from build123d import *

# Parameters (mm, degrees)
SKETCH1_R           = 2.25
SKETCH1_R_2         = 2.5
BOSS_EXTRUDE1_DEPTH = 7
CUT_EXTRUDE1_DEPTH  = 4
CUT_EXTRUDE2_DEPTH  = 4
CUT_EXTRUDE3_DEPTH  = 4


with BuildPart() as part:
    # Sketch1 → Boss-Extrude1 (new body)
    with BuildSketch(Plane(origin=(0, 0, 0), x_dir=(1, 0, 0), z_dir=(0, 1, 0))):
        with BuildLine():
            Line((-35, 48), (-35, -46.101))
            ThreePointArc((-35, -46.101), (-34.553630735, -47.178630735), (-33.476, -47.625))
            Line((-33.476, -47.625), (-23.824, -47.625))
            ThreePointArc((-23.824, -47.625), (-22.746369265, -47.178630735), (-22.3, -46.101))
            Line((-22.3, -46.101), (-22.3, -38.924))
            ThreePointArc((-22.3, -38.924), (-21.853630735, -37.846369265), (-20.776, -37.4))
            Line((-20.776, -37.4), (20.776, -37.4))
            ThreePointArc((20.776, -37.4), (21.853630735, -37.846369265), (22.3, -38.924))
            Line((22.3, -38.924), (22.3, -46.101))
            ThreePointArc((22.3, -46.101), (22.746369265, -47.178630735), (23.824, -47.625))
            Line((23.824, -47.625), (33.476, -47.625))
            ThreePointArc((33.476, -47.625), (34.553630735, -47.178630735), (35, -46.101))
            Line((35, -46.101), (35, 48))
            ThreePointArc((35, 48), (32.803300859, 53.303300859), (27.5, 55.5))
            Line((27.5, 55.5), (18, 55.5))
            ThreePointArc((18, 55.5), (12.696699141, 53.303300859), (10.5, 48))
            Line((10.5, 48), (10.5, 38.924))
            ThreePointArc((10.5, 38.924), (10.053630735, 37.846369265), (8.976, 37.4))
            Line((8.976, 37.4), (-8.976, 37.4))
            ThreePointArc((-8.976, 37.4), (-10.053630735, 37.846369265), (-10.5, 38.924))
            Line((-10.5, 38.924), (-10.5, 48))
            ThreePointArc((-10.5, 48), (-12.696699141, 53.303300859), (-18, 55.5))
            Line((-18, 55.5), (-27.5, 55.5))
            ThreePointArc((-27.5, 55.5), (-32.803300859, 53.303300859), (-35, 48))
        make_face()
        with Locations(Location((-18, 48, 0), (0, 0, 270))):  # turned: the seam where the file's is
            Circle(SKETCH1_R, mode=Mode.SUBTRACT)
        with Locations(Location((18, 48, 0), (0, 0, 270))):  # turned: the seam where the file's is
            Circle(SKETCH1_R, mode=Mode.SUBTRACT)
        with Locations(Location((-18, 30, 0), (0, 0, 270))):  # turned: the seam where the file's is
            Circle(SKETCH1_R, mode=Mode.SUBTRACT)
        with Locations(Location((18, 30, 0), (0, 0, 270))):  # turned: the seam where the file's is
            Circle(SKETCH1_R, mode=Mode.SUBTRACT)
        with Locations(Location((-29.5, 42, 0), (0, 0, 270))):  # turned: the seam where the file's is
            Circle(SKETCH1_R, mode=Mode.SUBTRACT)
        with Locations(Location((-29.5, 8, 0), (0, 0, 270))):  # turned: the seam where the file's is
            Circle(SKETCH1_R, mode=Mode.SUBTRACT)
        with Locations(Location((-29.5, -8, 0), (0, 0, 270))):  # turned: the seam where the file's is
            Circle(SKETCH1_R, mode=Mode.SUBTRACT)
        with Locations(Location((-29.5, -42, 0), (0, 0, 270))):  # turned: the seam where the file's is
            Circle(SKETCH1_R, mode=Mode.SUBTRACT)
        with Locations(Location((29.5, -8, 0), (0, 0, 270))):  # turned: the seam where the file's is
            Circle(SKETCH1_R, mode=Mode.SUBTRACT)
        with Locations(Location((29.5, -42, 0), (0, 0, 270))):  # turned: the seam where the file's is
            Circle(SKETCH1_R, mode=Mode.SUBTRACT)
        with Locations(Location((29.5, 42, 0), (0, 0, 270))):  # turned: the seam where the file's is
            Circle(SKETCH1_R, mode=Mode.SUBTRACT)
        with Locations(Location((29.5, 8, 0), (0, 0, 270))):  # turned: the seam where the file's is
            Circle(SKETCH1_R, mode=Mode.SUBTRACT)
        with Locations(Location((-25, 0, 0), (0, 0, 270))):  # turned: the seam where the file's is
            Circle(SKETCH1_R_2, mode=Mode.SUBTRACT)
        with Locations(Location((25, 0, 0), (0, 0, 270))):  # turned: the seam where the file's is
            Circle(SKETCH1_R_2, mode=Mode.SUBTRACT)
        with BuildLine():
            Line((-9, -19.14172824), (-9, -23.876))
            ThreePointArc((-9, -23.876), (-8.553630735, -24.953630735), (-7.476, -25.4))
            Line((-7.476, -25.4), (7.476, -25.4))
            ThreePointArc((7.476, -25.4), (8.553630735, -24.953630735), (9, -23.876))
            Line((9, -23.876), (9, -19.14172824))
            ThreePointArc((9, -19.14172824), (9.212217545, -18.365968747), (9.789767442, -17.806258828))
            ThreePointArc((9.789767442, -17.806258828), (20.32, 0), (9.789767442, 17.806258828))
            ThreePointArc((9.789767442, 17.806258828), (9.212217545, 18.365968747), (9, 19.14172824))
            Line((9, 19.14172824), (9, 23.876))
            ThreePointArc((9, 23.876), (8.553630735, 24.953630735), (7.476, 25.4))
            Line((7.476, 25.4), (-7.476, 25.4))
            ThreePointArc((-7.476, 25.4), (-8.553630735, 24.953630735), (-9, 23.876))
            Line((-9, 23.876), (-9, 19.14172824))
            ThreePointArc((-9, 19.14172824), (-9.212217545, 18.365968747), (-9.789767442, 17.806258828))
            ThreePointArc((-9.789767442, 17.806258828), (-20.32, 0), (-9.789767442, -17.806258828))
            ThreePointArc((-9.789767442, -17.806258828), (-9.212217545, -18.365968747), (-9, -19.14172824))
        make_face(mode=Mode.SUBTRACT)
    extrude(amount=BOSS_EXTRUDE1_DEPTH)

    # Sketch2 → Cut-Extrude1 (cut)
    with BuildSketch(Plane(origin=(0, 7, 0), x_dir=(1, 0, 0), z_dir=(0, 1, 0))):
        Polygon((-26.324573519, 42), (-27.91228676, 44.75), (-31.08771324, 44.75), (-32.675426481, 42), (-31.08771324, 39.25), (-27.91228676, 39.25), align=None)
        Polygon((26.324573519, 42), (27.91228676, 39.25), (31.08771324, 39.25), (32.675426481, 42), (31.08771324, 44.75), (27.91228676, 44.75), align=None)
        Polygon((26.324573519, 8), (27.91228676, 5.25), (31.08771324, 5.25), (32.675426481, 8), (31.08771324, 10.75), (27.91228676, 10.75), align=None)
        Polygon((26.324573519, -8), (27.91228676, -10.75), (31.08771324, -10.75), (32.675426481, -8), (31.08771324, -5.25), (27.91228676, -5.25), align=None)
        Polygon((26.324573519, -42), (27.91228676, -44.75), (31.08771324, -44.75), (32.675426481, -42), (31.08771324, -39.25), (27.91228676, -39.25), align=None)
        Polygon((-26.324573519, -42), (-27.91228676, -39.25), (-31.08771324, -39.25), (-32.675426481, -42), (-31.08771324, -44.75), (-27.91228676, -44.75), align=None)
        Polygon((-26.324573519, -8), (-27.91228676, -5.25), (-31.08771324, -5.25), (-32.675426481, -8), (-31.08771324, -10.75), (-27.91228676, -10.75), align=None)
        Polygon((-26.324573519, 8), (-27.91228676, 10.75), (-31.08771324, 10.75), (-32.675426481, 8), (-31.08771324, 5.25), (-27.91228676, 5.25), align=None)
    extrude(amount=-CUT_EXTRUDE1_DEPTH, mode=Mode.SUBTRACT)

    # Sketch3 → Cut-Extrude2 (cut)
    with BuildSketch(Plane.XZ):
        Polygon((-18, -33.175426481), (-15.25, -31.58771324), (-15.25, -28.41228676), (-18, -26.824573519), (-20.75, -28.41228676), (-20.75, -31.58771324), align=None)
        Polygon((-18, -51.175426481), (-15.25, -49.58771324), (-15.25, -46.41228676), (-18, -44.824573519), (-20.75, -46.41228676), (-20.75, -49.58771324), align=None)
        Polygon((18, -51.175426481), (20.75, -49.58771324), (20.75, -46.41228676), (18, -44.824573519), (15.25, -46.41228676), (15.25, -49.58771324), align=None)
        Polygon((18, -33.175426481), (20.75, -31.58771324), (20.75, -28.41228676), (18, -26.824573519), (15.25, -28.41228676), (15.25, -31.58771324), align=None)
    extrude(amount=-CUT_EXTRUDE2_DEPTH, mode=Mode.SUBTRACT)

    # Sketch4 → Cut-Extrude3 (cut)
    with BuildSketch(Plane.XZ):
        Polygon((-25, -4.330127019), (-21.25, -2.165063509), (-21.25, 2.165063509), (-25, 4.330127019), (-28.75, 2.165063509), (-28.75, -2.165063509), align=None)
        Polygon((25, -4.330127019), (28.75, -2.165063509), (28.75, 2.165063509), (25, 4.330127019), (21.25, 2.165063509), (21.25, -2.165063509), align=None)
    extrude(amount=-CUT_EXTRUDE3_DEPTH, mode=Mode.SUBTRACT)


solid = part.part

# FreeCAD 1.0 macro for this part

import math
import FreeCAD as App
import Part
import Sketcher
Q = App.Units.Quantity

doc = App.newDocument("Part")
body = doc.addObject("PartDesign::Body", "Body")

sketch1 = body.newObject("Sketcher::SketchObject", "Sketch")
sketch1.AttachmentSupport = (doc.getObject("XZ_Plane"), [""])
sketch1.MapMode = "FlatFace"
sketch1.addGeometry([
    Part.LineSegment(App.Vector(-35, -48, 0), App.Vector(-35, 46.1, 0)),
    Part.ArcOfCircle(Part.Circle(App.Vector(-33.5, 46.1, 0), App.Vector(0, 0, 1), 1.5), math.radians(90), math.radians(180)),
    Part.LineSegment(App.Vector(-33.5, 47.6, 0), App.Vector(-23.8, 47.6, 0)),
    Part.ArcOfCircle(Part.Circle(App.Vector(-23.8, 46.1, 0), App.Vector(0, 0, 1), 1.5), math.radians(0), math.radians(90)),
    Part.LineSegment(App.Vector(-22.3, 46.1, 0), App.Vector(-22.3, 38.9, 0)),
    Part.ArcOfCircle(Part.Circle(App.Vector(-20.8, 38.9, 0), App.Vector(0, 0, 1), 1.5), math.radians(180), math.radians(270)),
    Part.LineSegment(App.Vector(-20.8, 37.4, 0), App.Vector(20.8, 37.4, 0)),
    Part.ArcOfCircle(Part.Circle(App.Vector(20.8, 38.9, 0), App.Vector(0, 0, 1), 1.5), math.radians(-90), math.radians(0)),
    Part.LineSegment(App.Vector(22.3, 38.9, 0), App.Vector(22.3, 46.1, 0)),
    Part.ArcOfCircle(Part.Circle(App.Vector(23.8, 46.1, 0), App.Vector(0, 0, 1), 1.5), math.radians(90), math.radians(180)),
    Part.LineSegment(App.Vector(23.8, 47.6, 0), App.Vector(33.5, 47.6, 0)),
    Part.ArcOfCircle(Part.Circle(App.Vector(33.5, 46.1, 0), App.Vector(0, 0, 1), 1.5), math.radians(0), math.radians(90)),
    Part.LineSegment(App.Vector(35, 46.1, 0), App.Vector(35, -48, 0)),
    Part.ArcOfCircle(Part.Circle(App.Vector(27.5, -48, 0), App.Vector(0, 0, 1), 7.5), math.radians(-90), math.radians(0)),
    Part.LineSegment(App.Vector(27.5, -55.5, 0), App.Vector(18, -55.5, 0)),
    Part.ArcOfCircle(Part.Circle(App.Vector(18, -48, 0), App.Vector(0, 0, 1), 7.5), math.radians(180), math.radians(270)),
    Part.LineSegment(App.Vector(10.5, -48, 0), App.Vector(10.5, -38.9, 0)),
    Part.ArcOfCircle(Part.Circle(App.Vector(9, -38.9, 0), App.Vector(0, 0, 1), 1.5), math.radians(0), math.radians(90)),
    Part.LineSegment(App.Vector(9, -37.4, 0), App.Vector(-9, -37.4, 0)),
    Part.ArcOfCircle(Part.Circle(App.Vector(-9, -38.9, 0), App.Vector(0, 0, 1), 1.5), math.radians(90), math.radians(180)),
    Part.LineSegment(App.Vector(-10.5, -38.9, 0), App.Vector(-10.5, -48, 0)),
    Part.ArcOfCircle(Part.Circle(App.Vector(-18, -48, 0), App.Vector(0, 0, 1), 7.5), math.radians(-90), math.radians(0)),
    Part.LineSegment(App.Vector(-18, -55.5, 0), App.Vector(-27.5, -55.5, 0)),
    Part.ArcOfCircle(Part.Circle(App.Vector(-27.5, -48, 0), App.Vector(0, 0, 1), 7.5), math.radians(180), math.radians(270)),
    Part.Circle(App.Vector(-29.5, 42, 0), App.Vector(0, 0, 1), 2.2),
    Part.Circle(App.Vector(-29.5, 8, 0), App.Vector(0, 0, 1), 2.2),
    Part.Circle(App.Vector(-25, 0, 0), App.Vector(0, 0, 1), 2.5),
    Part.Circle(App.Vector(29.5, 42, 0), App.Vector(0, 0, 1), 2.2),
    Part.LineSegment(App.Vector(-9, 23.9, 0), App.Vector(-9, 19.1, 0)),
    Part.ArcOfCircle(Part.Circle(App.Vector(-10.5, 19.1, 0), App.Vector(0, 0, 1), 1.5), math.radians(-61), math.radians(0)),
    Part.ArcOfCircle(Part.Circle(App.Vector(0, 0, 0), App.Vector(0, 0, 1), 20.3), math.radians(119), math.radians(241)),
    Part.ArcOfCircle(Part.Circle(App.Vector(-10.5, -19.1, 0), App.Vector(0, 0, 1), 1.5), math.radians(0), math.radians(61)),
    Part.LineSegment(App.Vector(-9, -19.1, 0), App.Vector(-9, -23.9, 0)),
    Part.ArcOfCircle(Part.Circle(App.Vector(-7.5, -23.9, 0), App.Vector(0, 0, 1), 1.5), math.radians(180), math.radians(270)),
    Part.LineSegment(App.Vector(-7.5, -25.4, 0), App.Vector(7.5, -25.4, 0)),
    Part.ArcOfCircle(Part.Circle(App.Vector(7.5, -23.9, 0), App.Vector(0, 0, 1), 1.5), math.radians(-90), math.radians(0)),
    Part.LineSegment(App.Vector(9, -23.9, 0), App.Vector(9, -19.1, 0)),
    Part.ArcOfCircle(Part.Circle(App.Vector(10.5, -19.1, 0), App.Vector(0, 0, 1), 1.5), math.radians(119), math.radians(180)),
    Part.ArcOfCircle(Part.Circle(App.Vector(0, 0, 0), App.Vector(0, 0, 1), 20.3), math.radians(-61), math.radians(61)),
    Part.ArcOfCircle(Part.Circle(App.Vector(10.5, 19.1, 0), App.Vector(0, 0, 1), 1.5), math.radians(180), math.radians(241)),
    Part.LineSegment(App.Vector(9, 19.1, 0), App.Vector(9, 23.9, 0)),
    Part.ArcOfCircle(Part.Circle(App.Vector(7.5, 23.9, 0), App.Vector(0, 0, 1), 1.5), math.radians(0), math.radians(90)),
    Part.LineSegment(App.Vector(7.5, 25.4, 0), App.Vector(-7.5, 25.4, 0)),
    Part.ArcOfCircle(Part.Circle(App.Vector(-7.5, 23.9, 0), App.Vector(0, 0, 1), 1.5), math.radians(90), math.radians(180)),
    Part.Circle(App.Vector(29.5, 8, 0), App.Vector(0, 0, 1), 2.2),
    Part.Circle(App.Vector(25, 0, 0), App.Vector(0, 0, 1), 2.5),
    Part.Circle(App.Vector(-29.5, -8, 0), App.Vector(0, 0, 1), 2.2),
    Part.Circle(App.Vector(-18, -30, 0), App.Vector(0, 0, 1), 2.2),
    Part.Circle(App.Vector(-29.5, -42, 0), App.Vector(0, 0, 1), 2.2),
    Part.Circle(App.Vector(-18, -48, 0), App.Vector(0, 0, 1), 2.2),
    Part.Circle(App.Vector(29.5, -8, 0), App.Vector(0, 0, 1), 2.2),
    Part.Circle(App.Vector(18, -30, 0), App.Vector(0, 0, 1), 2.2),
    Part.Circle(App.Vector(18, -48, 0), App.Vector(0, 0, 1), 2.2),
    Part.Circle(App.Vector(29.5, -42, 0), App.Vector(0, 0, 1), 2.2),
], False)
sketch1.addConstraint([
    Sketcher.Constraint("Tangent", 0, 2, 1, 2),
    Sketcher.Constraint("Tangent", 1, 1, 2, 1),
    Sketcher.Constraint("Tangent", 2, 2, 3, 2),
    Sketcher.Constraint("Tangent", 3, 1, 4, 1),
    Sketcher.Constraint("Tangent", 4, 2, 5, 1),
    Sketcher.Constraint("Tangent", 5, 2, 6, 1),
    Sketcher.Constraint("Tangent", 6, 2, 7, 1),
    Sketcher.Constraint("Tangent", 7, 2, 8, 1),
    Sketcher.Constraint("Tangent", 8, 2, 9, 2),
    Sketcher.Constraint("Tangent", 9, 1, 10, 1),
    Sketcher.Constraint("Tangent", 10, 2, 11, 2),
    Sketcher.Constraint("Tangent", 11, 1, 12, 1),
    Sketcher.Constraint("Tangent", 12, 2, 13, 2),
    Sketcher.Constraint("Tangent", 13, 1, 14, 1),
    Sketcher.Constraint("Tangent", 14, 2, 15, 2),
    Sketcher.Constraint("Tangent", 15, 1, 16, 1),
    Sketcher.Constraint("Tangent", 16, 2, 17, 1),
    Sketcher.Constraint("Tangent", 17, 2, 18, 1),
    Sketcher.Constraint("Tangent", 18, 2, 19, 1),
    Sketcher.Constraint("Tangent", 19, 2, 20, 1),
    Sketcher.Constraint("Tangent", 20, 2, 21, 2),
    Sketcher.Constraint("Tangent", 21, 1, 22, 1),
    Sketcher.Constraint("Tangent", 22, 2, 23, 2),
    Sketcher.Constraint("Tangent", 23, 1, 0, 1),
    Sketcher.Constraint("Tangent", 28, 2, 29, 2),
    Sketcher.Constraint("Tangent", 29, 1, 30, 1),
    Sketcher.Constraint("Tangent", 30, 2, 31, 2),
    Sketcher.Constraint("Tangent", 31, 1, 32, 1),
    Sketcher.Constraint("Tangent", 32, 2, 33, 1),
    Sketcher.Constraint("Tangent", 33, 2, 34, 1),
    Sketcher.Constraint("Tangent", 34, 2, 35, 1),
    Sketcher.Constraint("Tangent", 35, 2, 36, 1),
    Sketcher.Constraint("Tangent", 36, 2, 37, 2),
    Sketcher.Constraint("Tangent", 37, 1, 38, 1),
    Sketcher.Constraint("Tangent", 38, 2, 39, 2),
    Sketcher.Constraint("Tangent", 39, 1, 40, 1),
    Sketcher.Constraint("Tangent", 40, 2, 41, 1),
    Sketcher.Constraint("Tangent", 41, 2, 42, 1),
    Sketcher.Constraint("Tangent", 42, 2, 43, 1),
    Sketcher.Constraint("Tangent", 43, 2, 28, 1),
    Sketcher.Constraint("Vertical", 0),
    Sketcher.Constraint("Horizontal", 2),
    Sketcher.Constraint("Vertical", 4),
    Sketcher.Constraint("Horizontal", 6),
    Sketcher.Constraint("Vertical", 8),
    Sketcher.Constraint("Horizontal", 10),
    Sketcher.Constraint("Vertical", 12),
    Sketcher.Constraint("Horizontal", 14),
    Sketcher.Constraint("Vertical", 16),
    Sketcher.Constraint("Horizontal", 18),
    Sketcher.Constraint("Vertical", 20),
    Sketcher.Constraint("Horizontal", 22),
    Sketcher.Constraint("Vertical", 28),
    Sketcher.Constraint("Vertical", 32),
    Sketcher.Constraint("Horizontal", 34),
    Sketcher.Constraint("Vertical", 36),
    Sketcher.Constraint("Vertical", 40),
    Sketcher.Constraint("Horizontal", 42),
    Sketcher.Constraint("Coincident", 30, 3, -1, 1),
    Sketcher.Constraint("Coincident", 38, 3, -1, 1),
    Sketcher.Constraint("Coincident", 49, 3, 21, 3),
    Sketcher.Constraint("Coincident", 52, 3, 15, 3),
    Sketcher.Constraint("Equal", 1, 3),
    Sketcher.Constraint("Equal", 3, 5),
    Sketcher.Constraint("Equal", 5, 7),
    Sketcher.Constraint("Equal", 7, 9),
    Sketcher.Constraint("Equal", 9, 11),
    Sketcher.Constraint("Equal", 13, 15),
    Sketcher.Constraint("Equal", 11, 17),
    Sketcher.Constraint("Equal", 17, 19),
    Sketcher.Constraint("Equal", 15, 21),
    Sketcher.Constraint("Equal", 21, 23),
    Sketcher.Constraint("Equal", 24, 25),
    Sketcher.Constraint("Equal", 25, 27),
    Sketcher.Constraint("Equal", 19, 29),
    Sketcher.Constraint("Equal", 29, 31),
    Sketcher.Constraint("Equal", 31, 33),
    Sketcher.Constraint("Equal", 33, 35),
    Sketcher.Constraint("Equal", 35, 37),
    Sketcher.Constraint("Equal", 30, 38),
    Sketcher.Constraint("Equal", 37, 39),
    Sketcher.Constraint("Equal", 39, 41),
    Sketcher.Constraint("Equal", 41, 43),
    Sketcher.Constraint("Equal", 27, 44),
    Sketcher.Constraint("Equal", 26, 45),
    Sketcher.Constraint("Equal", 44, 46),
    Sketcher.Constraint("Equal", 46, 47),
    Sketcher.Constraint("Equal", 47, 48),
    Sketcher.Constraint("Equal", 48, 49),
    Sketcher.Constraint("Equal", 49, 50),
    Sketcher.Constraint("Equal", 50, 51),
    Sketcher.Constraint("Equal", 51, 52),
    Sketcher.Constraint("Equal", 52, 53),
    Sketcher.Constraint("Symmetric", 33, 3, 41, 3, -1, 1),
    Sketcher.Constraint("Symmetric", 26, 3, 45, 3, -1, 1),
    Sketcher.Constraint("Symmetric", 44, 3, 46, 3, -1, 1),
    Sketcher.Constraint("Symmetric", 27, 3, 48, 3, -1, 1),
    Sketcher.Constraint("Symmetric", 25, 3, 50, 3, -1, 1),
    Sketcher.Constraint("Symmetric", 24, 3, 53, 3, -1, 1),
    Sketcher.Constraint("Symmetric", 3, 3, 9, 3, -2),
    Sketcher.Constraint("Symmetric", 15, 3, 21, 3, -2),
    Sketcher.Constraint("Symmetric", 24, 3, 27, 3, -2),
    Sketcher.Constraint("Symmetric", 25, 3, 44, 3, -2),
    Sketcher.Constraint("Symmetric", 47, 3, 51, 3, -2),
    Sketcher.Constraint("PointOnObject", 26, 3, -1),
    Sketcher.Constraint("Horizontal", 31, 3, 37, 3),
    Sketcher.Constraint("Horizontal", 29, 3, 39, 3),
    Sketcher.Constraint("Vertical", 24, 3, 25, 3),
    Sketcher.Constraint("Vertical", 21, 3, 47, 3),
    Sketcher.Constraint("Equal", 2, 10),
    Sketcher.Constraint("Diameter", 26, 5.0),
    Sketcher.Constraint("Diameter", 24, 4.5),
    Sketcher.Constraint("Radius", 13, 7.5),
    Sketcher.Constraint("Radius", 30, 20.32),
    Sketcher.Constraint("DistanceX", 14, 2, 14, 1, 9.5),
    Sketcher.Constraint("DistanceY", 13, 3, -1, 1, 48.0),
    Sketcher.Constraint("DistanceX", -1, 1, 15, 3, 18.0),
    Sketcher.Constraint("DistanceY", -1, 1, 24, 3, 42.0),
    Sketcher.Constraint("DistanceY", -1, 1, 25, 3, 8.0),
    Sketcher.Constraint("DistanceX", 26, 3, -1, 1, 25.0),
    Sketcher.Constraint("DistanceY", 47, 3, -1, 1, 30.0),
    Sketcher.Constraint("DistanceX", 28, 2, -1, 1, 9.0),
    Sketcher.Constraint("Radius", 1, 1.524),
    Sketcher.Constraint("DistanceX", 24, 3, -1, 1, 29.5),
    Sketcher.Constraint("DistanceX", 3, 1, -1, 1, 22.3),
    Sketcher.Constraint("DistanceY", -1, 1, 5, 2, 37.4),
    Sketcher.Constraint("DistanceY", 17, 2, -1, 1, 37.4),
    Sketcher.Constraint("DistanceY", 33, 2, -1, 1, 25.4),
    Sketcher.Constraint("DistanceY", 0, 1, 0, 2, 94.101),
])
pad1 = body.newObject("PartDesign::Pad", "Pad")
pad1.Profile = sketch1
pad1.Length = 7
pad1.Reversed = True

sketch2 = body.newObject("Sketcher::SketchObject", "Sketch001")
sketch2.AttachmentSupport = (doc.getObject("XZ_Plane"), [""])
sketch2.MapMode = "FlatFace"
sketch2.AttachmentOffset = App.Placement(App.Vector(0, 0, -7), App.Rotation())
sketch2.addGeometry([
    Part.LineSegment(App.Vector(-26.3, -42, 0), App.Vector(-27.9, -44.8, 0)),
    Part.LineSegment(App.Vector(-27.9, -44.8, 0), App.Vector(-31.1, -44.8, 0)),
    Part.LineSegment(App.Vector(-31.1, -44.8, 0), App.Vector(-32.7, -42, 0)),
    Part.LineSegment(App.Vector(-32.7, -42, 0), App.Vector(-31.1, -39.2, 0)),
    Part.LineSegment(App.Vector(-31.1, -39.2, 0), App.Vector(-27.9, -39.2, 0)),
    Part.LineSegment(App.Vector(-27.9, -39.2, 0), App.Vector(-26.3, -42, 0)),
    Part.LineSegment(App.Vector(26.3, -42, 0), App.Vector(27.9, -39.2, 0)),
    Part.LineSegment(App.Vector(27.9, -39.2, 0), App.Vector(31.1, -39.2, 0)),
    Part.LineSegment(App.Vector(31.1, -39.2, 0), App.Vector(32.7, -42, 0)),
    Part.LineSegment(App.Vector(32.7, -42, 0), App.Vector(31.1, -44.8, 0)),
    Part.LineSegment(App.Vector(31.1, -44.8, 0), App.Vector(27.9, -44.8, 0)),
    Part.LineSegment(App.Vector(27.9, -44.8, 0), App.Vector(26.3, -42, 0)),
    Part.LineSegment(App.Vector(26.3, -8, 0), App.Vector(27.9, -5.2, 0)),
    Part.LineSegment(App.Vector(27.9, -5.2, 0), App.Vector(31.1, -5.2, 0)),
    Part.LineSegment(App.Vector(31.1, -5.2, 0), App.Vector(32.7, -8, 0)),
    Part.LineSegment(App.Vector(32.7, -8, 0), App.Vector(31.1, -10.8, 0)),
    Part.LineSegment(App.Vector(31.1, -10.8, 0), App.Vector(27.9, -10.8, 0)),
    Part.LineSegment(App.Vector(27.9, -10.8, 0), App.Vector(26.3, -8, 0)),
    Part.LineSegment(App.Vector(26.3, 8, 0), App.Vector(27.9, 10.8, 0)),
    Part.LineSegment(App.Vector(27.9, 10.8, 0), App.Vector(31.1, 10.8, 0)),
    Part.LineSegment(App.Vector(31.1, 10.8, 0), App.Vector(32.7, 8, 0)),
    Part.LineSegment(App.Vector(32.7, 8, 0), App.Vector(31.1, 5.2, 0)),
    Part.LineSegment(App.Vector(31.1, 5.2, 0), App.Vector(27.9, 5.2, 0)),
    Part.LineSegment(App.Vector(27.9, 5.2, 0), App.Vector(26.3, 8, 0)),
    Part.LineSegment(App.Vector(26.3, 42, 0), App.Vector(27.9, 44.8, 0)),
    Part.LineSegment(App.Vector(27.9, 44.8, 0), App.Vector(31.1, 44.8, 0)),
    Part.LineSegment(App.Vector(31.1, 44.8, 0), App.Vector(32.7, 42, 0)),
    Part.LineSegment(App.Vector(32.7, 42, 0), App.Vector(31.1, 39.2, 0)),
    Part.LineSegment(App.Vector(31.1, 39.2, 0), App.Vector(27.9, 39.2, 0)),
    Part.LineSegment(App.Vector(27.9, 39.2, 0), App.Vector(26.3, 42, 0)),
    Part.LineSegment(App.Vector(-26.3, 42, 0), App.Vector(-27.9, 39.2, 0)),
    Part.LineSegment(App.Vector(-27.9, 39.2, 0), App.Vector(-31.1, 39.2, 0)),
    Part.LineSegment(App.Vector(-31.1, 39.2, 0), App.Vector(-32.7, 42, 0)),
    Part.LineSegment(App.Vector(-32.7, 42, 0), App.Vector(-31.1, 44.8, 0)),
    Part.LineSegment(App.Vector(-31.1, 44.8, 0), App.Vector(-27.9, 44.8, 0)),
    Part.LineSegment(App.Vector(-27.9, 44.8, 0), App.Vector(-26.3, 42, 0)),
    Part.LineSegment(App.Vector(-26.3, 8, 0), App.Vector(-27.9, 5.2, 0)),
    Part.LineSegment(App.Vector(-27.9, 5.2, 0), App.Vector(-31.1, 5.2, 0)),
    Part.LineSegment(App.Vector(-31.1, 5.2, 0), App.Vector(-32.7, 8, 0)),
    Part.LineSegment(App.Vector(-32.7, 8, 0), App.Vector(-31.1, 10.8, 0)),
    Part.LineSegment(App.Vector(-31.1, 10.8, 0), App.Vector(-27.9, 10.8, 0)),
    Part.LineSegment(App.Vector(-27.9, 10.8, 0), App.Vector(-26.3, 8, 0)),
    Part.LineSegment(App.Vector(-26.3, -8, 0), App.Vector(-27.9, -10.8, 0)),
    Part.LineSegment(App.Vector(-27.9, -10.8, 0), App.Vector(-31.1, -10.8, 0)),
    Part.LineSegment(App.Vector(-31.1, -10.8, 0), App.Vector(-32.7, -8, 0)),
    Part.LineSegment(App.Vector(-32.7, -8, 0), App.Vector(-31.1, -5.2, 0)),
    Part.LineSegment(App.Vector(-31.1, -5.2, 0), App.Vector(-27.9, -5.2, 0)),
    Part.LineSegment(App.Vector(-27.9, -5.2, 0), App.Vector(-26.3, -8, 0)),
], False)
sketch2.addConstraint([
    Sketcher.Constraint("Coincident", 0, 2, 1, 1),
    Sketcher.Constraint("Coincident", 1, 2, 2, 1),
    Sketcher.Constraint("Coincident", 2, 2, 3, 1),
    Sketcher.Constraint("Coincident", 3, 2, 4, 1),
    Sketcher.Constraint("Coincident", 4, 2, 5, 1),
    Sketcher.Constraint("Coincident", 5, 2, 0, 1),
    Sketcher.Constraint("Coincident", 6, 2, 7, 1),
    Sketcher.Constraint("Coincident", 7, 2, 8, 1),
    Sketcher.Constraint("Coincident", 8, 2, 9, 1),
    Sketcher.Constraint("Coincident", 9, 2, 10, 1),
    Sketcher.Constraint("Coincident", 10, 2, 11, 1),
    Sketcher.Constraint("Coincident", 11, 2, 6, 1),
    Sketcher.Constraint("Coincident", 12, 2, 13, 1),
    Sketcher.Constraint("Coincident", 13, 2, 14, 1),
    Sketcher.Constraint("Coincident", 14, 2, 15, 1),
    Sketcher.Constraint("Coincident", 15, 2, 16, 1),
    Sketcher.Constraint("Coincident", 16, 2, 17, 1),
    Sketcher.Constraint("Coincident", 17, 2, 12, 1),
    Sketcher.Constraint("Coincident", 18, 2, 19, 1),
    Sketcher.Constraint("Coincident", 19, 2, 20, 1),
    Sketcher.Constraint("Coincident", 20, 2, 21, 1),
    Sketcher.Constraint("Coincident", 21, 2, 22, 1),
    Sketcher.Constraint("Coincident", 22, 2, 23, 1),
    Sketcher.Constraint("Coincident", 23, 2, 18, 1),
    Sketcher.Constraint("Coincident", 24, 2, 25, 1),
    Sketcher.Constraint("Coincident", 25, 2, 26, 1),
    Sketcher.Constraint("Coincident", 26, 2, 27, 1),
    Sketcher.Constraint("Coincident", 27, 2, 28, 1),
    Sketcher.Constraint("Coincident", 28, 2, 29, 1),
    Sketcher.Constraint("Coincident", 29, 2, 24, 1),
    Sketcher.Constraint("Coincident", 30, 2, 31, 1),
    Sketcher.Constraint("Coincident", 31, 2, 32, 1),
    Sketcher.Constraint("Coincident", 32, 2, 33, 1),
    Sketcher.Constraint("Coincident", 33, 2, 34, 1),
    Sketcher.Constraint("Coincident", 34, 2, 35, 1),
    Sketcher.Constraint("Coincident", 35, 2, 30, 1),
    Sketcher.Constraint("Coincident", 36, 2, 37, 1),
    Sketcher.Constraint("Coincident", 37, 2, 38, 1),
    Sketcher.Constraint("Coincident", 38, 2, 39, 1),
    Sketcher.Constraint("Coincident", 39, 2, 40, 1),
    Sketcher.Constraint("Coincident", 40, 2, 41, 1),
    Sketcher.Constraint("Coincident", 41, 2, 36, 1),
    Sketcher.Constraint("Coincident", 42, 2, 43, 1),
    Sketcher.Constraint("Coincident", 43, 2, 44, 1),
    Sketcher.Constraint("Coincident", 44, 2, 45, 1),
    Sketcher.Constraint("Coincident", 45, 2, 46, 1),
    Sketcher.Constraint("Coincident", 46, 2, 47, 1),
    Sketcher.Constraint("Coincident", 47, 2, 42, 1),
    Sketcher.Constraint("Horizontal", 1),
    Sketcher.Constraint("Horizontal", 4),
    Sketcher.Constraint("Horizontal", 7),
    Sketcher.Constraint("Horizontal", 10),
    Sketcher.Constraint("Horizontal", 13),
    Sketcher.Constraint("Horizontal", 16),
    Sketcher.Constraint("Horizontal", 19),
    Sketcher.Constraint("Horizontal", 22),
    Sketcher.Constraint("Horizontal", 25),
    Sketcher.Constraint("Horizontal", 28),
    Sketcher.Constraint("Horizontal", 31),
    Sketcher.Constraint("Horizontal", 34),
    Sketcher.Constraint("Horizontal", 37),
    Sketcher.Constraint("Horizontal", 40),
    Sketcher.Constraint("Horizontal", 43),
    Sketcher.Constraint("Horizontal", 46),
    Sketcher.Constraint("Symmetric", 0, 2, 24, 2, -1, 1),
    Sketcher.Constraint("Symmetric", 2, 2, 26, 2, -1, 1),
    Sketcher.Constraint("Symmetric", 3, 2, 27, 2, -1, 1),
    Sketcher.Constraint("Symmetric", 5, 2, 29, 2, -1, 1),
    Sketcher.Constraint("Symmetric", 6, 2, 30, 2, -1, 1),
    Sketcher.Constraint("Symmetric", 8, 2, 32, 2, -1, 1),
    Sketcher.Constraint("Symmetric", 9, 2, 33, 2, -1, 1),
    Sketcher.Constraint("Symmetric", 11, 2, 35, 2, -1, 1),
    Sketcher.Constraint("Symmetric", 12, 2, 36, 2, -1, 1),
    Sketcher.Constraint("Symmetric", 14, 2, 38, 2, -1, 1),
    Sketcher.Constraint("Symmetric", 15, 2, 39, 2, -1, 1),
    Sketcher.Constraint("Symmetric", 17, 2, 41, 2, -1, 1),
    Sketcher.Constraint("Symmetric", 18, 2, 42, 2, -1, 1),
    Sketcher.Constraint("Symmetric", 20, 2, 44, 2, -1, 1),
    Sketcher.Constraint("Symmetric", 21, 2, 45, 2, -1, 1),
    Sketcher.Constraint("Symmetric", 23, 2, 47, 2, -1, 1),
    Sketcher.Constraint("Symmetric", 4, 2, 6, 2, -2),
    Sketcher.Constraint("Symmetric", 2, 2, 8, 2, -2),
    Sketcher.Constraint("Symmetric", 1, 2, 9, 2, -2),
    Sketcher.Constraint("Symmetric", 5, 2, 11, 2, -2),
    Sketcher.Constraint("Symmetric", 22, 2, 36, 2, -2),
    Sketcher.Constraint("Symmetric", 20, 2, 38, 2, -2),
    Sketcher.Constraint("Symmetric", 19, 2, 39, 2, -2),
    Sketcher.Constraint("Symmetric", 23, 2, 41, 2, -2),
    Sketcher.Constraint("Parallel", 0, 3),
    Sketcher.Constraint("Parallel", 2, 5),
    Sketcher.Constraint("Parallel", 3, 6),
    Sketcher.Constraint("Parallel", 5, 8),
    Sketcher.Constraint("Parallel", 8, 11),
    Sketcher.Constraint("Parallel", 9, 12),
    Sketcher.Constraint("Parallel", 11, 14),
    Sketcher.Constraint("Parallel", 12, 15),
    Sketcher.Constraint("Parallel", 14, 17),
    Sketcher.Constraint("Parallel", 15, 18),
    Sketcher.Constraint("Parallel", 18, 21),
    Sketcher.Constraint("Parallel", 23, 26),
    Sketcher.Constraint("Parallel", 26, 29),
    Sketcher.Constraint("Parallel", 29, 32),
    Sketcher.Constraint("Parallel", 32, 35),
    Sketcher.Constraint("Parallel", 35, 38),
    Sketcher.Constraint("Parallel", 38, 41),
    Sketcher.Constraint("Parallel", 41, 44),
    Sketcher.Constraint("Parallel", 44, 47),
    Sketcher.Constraint("Horizontal", 2, 2, 5, 2),
    Sketcher.Constraint("Horizontal", 14, 2, 17, 2),
    Sketcher.Constraint("Vertical", 1, 2, 3, 2),
    Sketcher.Constraint("Vertical", 10, 2, 12, 2),
    Sketcher.Constraint("Vertical", 9, 2, 13, 2),
    Sketcher.Constraint("Vertical", 8, 2, 14, 2),
    Sketcher.Constraint("Vertical", 13, 2, 15, 2),
    Sketcher.Constraint("Angle", 0, Q("-120 deg")),
    Sketcher.Constraint("DistanceY", 2, 2, -1, 1, 42.0),
    Sketcher.Constraint("DistanceY", 14, 2, -1, 1, 8.0),
    Sketcher.Constraint("DistanceX", 3, 2, 6, 2, 59.0),
    Sketcher.Constraint("DistanceY", 1, 2, 3, 2, 5.5),
    Sketcher.Constraint("DistanceX", 1, 2, 1, 1, 3.175426),
])
pocket1 = body.newObject("PartDesign::Pocket", "Pocket")
pocket1.Profile = sketch2
pocket1.Length = 4
pocket1.Reversed = True

sketch3 = body.newObject("Sketcher::SketchObject", "Sketch002")
sketch3.AttachmentSupport = (doc.getObject("XZ_Plane"), [""])
sketch3.MapMode = "FlatFace"
sketch3.addGeometry([
    Part.LineSegment(App.Vector(-18, -33.2, 0), App.Vector(-15.2, -31.6, 0)),
    Part.LineSegment(App.Vector(-15.2, -31.6, 0), App.Vector(-15.2, -28.4, 0)),
    Part.LineSegment(App.Vector(-15.2, -28.4, 0), App.Vector(-18, -26.8, 0)),
    Part.LineSegment(App.Vector(-18, -26.8, 0), App.Vector(-20.8, -28.4, 0)),
    Part.LineSegment(App.Vector(-20.8, -28.4, 0), App.Vector(-20.8, -31.6, 0)),
    Part.LineSegment(App.Vector(-20.8, -31.6, 0), App.Vector(-18, -33.2, 0)),
    Part.LineSegment(App.Vector(-18, -51.2, 0), App.Vector(-15.2, -49.6, 0)),
    Part.LineSegment(App.Vector(-15.2, -49.6, 0), App.Vector(-15.2, -46.4, 0)),
    Part.LineSegment(App.Vector(-15.2, -46.4, 0), App.Vector(-18, -44.8, 0)),
    Part.LineSegment(App.Vector(-18, -44.8, 0), App.Vector(-20.8, -46.4, 0)),
    Part.LineSegment(App.Vector(-20.8, -46.4, 0), App.Vector(-20.8, -49.6, 0)),
    Part.LineSegment(App.Vector(-20.8, -49.6, 0), App.Vector(-18, -51.2, 0)),
    Part.LineSegment(App.Vector(18, -51.2, 0), App.Vector(20.8, -49.6, 0)),
    Part.LineSegment(App.Vector(20.8, -49.6, 0), App.Vector(20.8, -46.4, 0)),
    Part.LineSegment(App.Vector(20.8, -46.4, 0), App.Vector(18, -44.8, 0)),
    Part.LineSegment(App.Vector(18, -44.8, 0), App.Vector(15.2, -46.4, 0)),
    Part.LineSegment(App.Vector(15.2, -46.4, 0), App.Vector(15.2, -49.6, 0)),
    Part.LineSegment(App.Vector(15.2, -49.6, 0), App.Vector(18, -51.2, 0)),
    Part.LineSegment(App.Vector(18, -33.2, 0), App.Vector(20.8, -31.6, 0)),
    Part.LineSegment(App.Vector(20.8, -31.6, 0), App.Vector(20.8, -28.4, 0)),
    Part.LineSegment(App.Vector(20.8, -28.4, 0), App.Vector(18, -26.8, 0)),
    Part.LineSegment(App.Vector(18, -26.8, 0), App.Vector(15.2, -28.4, 0)),
    Part.LineSegment(App.Vector(15.2, -28.4, 0), App.Vector(15.2, -31.6, 0)),
    Part.LineSegment(App.Vector(15.2, -31.6, 0), App.Vector(18, -33.2, 0)),
], False)
sketch3.addConstraint([
    Sketcher.Constraint("Coincident", 0, 2, 1, 1),
    Sketcher.Constraint("Coincident", 1, 2, 2, 1),
    Sketcher.Constraint("Coincident", 2, 2, 3, 1),
    Sketcher.Constraint("Coincident", 3, 2, 4, 1),
    Sketcher.Constraint("Coincident", 4, 2, 5, 1),
    Sketcher.Constraint("Coincident", 5, 2, 0, 1),
    Sketcher.Constraint("Coincident", 6, 2, 7, 1),
    Sketcher.Constraint("Coincident", 7, 2, 8, 1),
    Sketcher.Constraint("Coincident", 8, 2, 9, 1),
    Sketcher.Constraint("Coincident", 9, 2, 10, 1),
    Sketcher.Constraint("Coincident", 10, 2, 11, 1),
    Sketcher.Constraint("Coincident", 11, 2, 6, 1),
    Sketcher.Constraint("Coincident", 12, 2, 13, 1),
    Sketcher.Constraint("Coincident", 13, 2, 14, 1),
    Sketcher.Constraint("Coincident", 14, 2, 15, 1),
    Sketcher.Constraint("Coincident", 15, 2, 16, 1),
    Sketcher.Constraint("Coincident", 16, 2, 17, 1),
    Sketcher.Constraint("Coincident", 17, 2, 12, 1),
    Sketcher.Constraint("Coincident", 18, 2, 19, 1),
    Sketcher.Constraint("Coincident", 19, 2, 20, 1),
    Sketcher.Constraint("Coincident", 20, 2, 21, 1),
    Sketcher.Constraint("Coincident", 21, 2, 22, 1),
    Sketcher.Constraint("Coincident", 22, 2, 23, 1),
    Sketcher.Constraint("Coincident", 23, 2, 18, 1),
    Sketcher.Constraint("Vertical", 1),
    Sketcher.Constraint("Vertical", 4),
    Sketcher.Constraint("Vertical", 7),
    Sketcher.Constraint("Vertical", 10),
    Sketcher.Constraint("Vertical", 13),
    Sketcher.Constraint("Vertical", 16),
    Sketcher.Constraint("Vertical", 19),
    Sketcher.Constraint("Vertical", 22),
    Sketcher.Constraint("Symmetric", 10, 2, 12, 2, -2),
    Sketcher.Constraint("Symmetric", 8, 2, 14, 2, -2),
    Sketcher.Constraint("Symmetric", 7, 2, 15, 2, -2),
    Sketcher.Constraint("Symmetric", 11, 2, 17, 2, -2),
    Sketcher.Constraint("Symmetric", 4, 2, 18, 2, -2),
    Sketcher.Constraint("Symmetric", 2, 2, 20, 2, -2),
    Sketcher.Constraint("Symmetric", 1, 2, 21, 2, -2),
    Sketcher.Constraint("Symmetric", 5, 2, 23, 2, -2),
    Sketcher.Constraint("Parallel", 0, 3),
    Sketcher.Constraint("Parallel", 2, 5),
    Sketcher.Constraint("Parallel", 3, 6),
    Sketcher.Constraint("Parallel", 5, 8),
    Sketcher.Constraint("Parallel", 6, 9),
    Sketcher.Constraint("Parallel", 8, 11),
    Sketcher.Constraint("Parallel", 9, 12),
    Sketcher.Constraint("Parallel", 11, 14),
    Sketcher.Constraint("Parallel", 14, 17),
    Sketcher.Constraint("Parallel", 17, 20),
    Sketcher.Constraint("Parallel", 20, 23),
    Sketcher.Constraint("Horizontal", 1, 2, 3, 2),
    Sketcher.Constraint("Horizontal", 0, 2, 4, 2),
    Sketcher.Constraint("Horizontal", 7, 2, 9, 2),
    Sketcher.Constraint("Horizontal", 6, 2, 10, 2),
    Sketcher.Constraint("Vertical", 1, 2, 6, 2),
    Sketcher.Constraint("Vertical", 5, 2, 8, 2),
    Sketcher.Constraint("Equal", 4, 7),
    Sketcher.Constraint("Angle", 0, Q("30 deg")),
    Sketcher.Constraint("DistanceX", 2, 2, -1, 1, 18.0),
    Sketcher.Constraint("DistanceY", 6, 2, 0, 2, 18.0),
    Sketcher.Constraint("DistanceX", 3, 2, 1, 2, 5.5),
    Sketcher.Constraint("DistanceY", 1, 1, 1, 2, 3.175426),
    Sketcher.Constraint("DistanceY", 0, 2, -1, 1, 31.587713),
])
pocket2 = body.newObject("PartDesign::Pocket", "Pocket001")
pocket2.Profile = sketch3
pocket2.Length = 4

sketch4 = body.newObject("Sketcher::SketchObject", "Sketch003")
sketch4.AttachmentSupport = (doc.getObject("XZ_Plane"), [""])
sketch4.MapMode = "FlatFace"
sketch4.addGeometry([
    Part.LineSegment(App.Vector(-25, -4.3, 0), App.Vector(-21.2, -2.2, 0)),
    Part.LineSegment(App.Vector(-21.2, -2.2, 0), App.Vector(-21.2, 2.2, 0)),
    Part.LineSegment(App.Vector(-21.2, 2.2, 0), App.Vector(-25, 4.3, 0)),
    Part.LineSegment(App.Vector(-25, 4.3, 0), App.Vector(-28.8, 2.2, 0)),
    Part.LineSegment(App.Vector(-28.8, 2.2, 0), App.Vector(-28.8, -2.2, 0)),
    Part.LineSegment(App.Vector(-28.8, -2.2, 0), App.Vector(-25, -4.3, 0)),
    Part.LineSegment(App.Vector(25, -4.3, 0), App.Vector(28.8, -2.2, 0)),
    Part.LineSegment(App.Vector(28.8, -2.2, 0), App.Vector(28.8, 2.2, 0)),
    Part.LineSegment(App.Vector(28.8, 2.2, 0), App.Vector(25, 4.3, 0)),
    Part.LineSegment(App.Vector(25, 4.3, 0), App.Vector(21.2, 2.2, 0)),
    Part.LineSegment(App.Vector(21.2, 2.2, 0), App.Vector(21.2, -2.2, 0)),
    Part.LineSegment(App.Vector(21.2, -2.2, 0), App.Vector(25, -4.3, 0)),
], False)
sketch4.addConstraint([
    Sketcher.Constraint("Coincident", 0, 2, 1, 1),
    Sketcher.Constraint("Coincident", 1, 2, 2, 1),
    Sketcher.Constraint("Coincident", 2, 2, 3, 1),
    Sketcher.Constraint("Coincident", 3, 2, 4, 1),
    Sketcher.Constraint("Coincident", 4, 2, 5, 1),
    Sketcher.Constraint("Coincident", 5, 2, 0, 1),
    Sketcher.Constraint("Coincident", 6, 2, 7, 1),
    Sketcher.Constraint("Coincident", 7, 2, 8, 1),
    Sketcher.Constraint("Coincident", 8, 2, 9, 1),
    Sketcher.Constraint("Coincident", 9, 2, 10, 1),
    Sketcher.Constraint("Coincident", 10, 2, 11, 1),
    Sketcher.Constraint("Coincident", 11, 2, 6, 1),
    Sketcher.Constraint("Vertical", 1),
    Sketcher.Constraint("Vertical", 4),
    Sketcher.Constraint("Vertical", 7),
    Sketcher.Constraint("Vertical", 10),
    Sketcher.Constraint("Symmetric", 3, 2, 6, 2, -1, 1),
    Sketcher.Constraint("Symmetric", 5, 2, 8, 2, -1, 1),
    Sketcher.Constraint("Symmetric", 0, 2, 9, 2, -1, 1),
    Sketcher.Constraint("Symmetric", 2, 2, 11, 2, -1, 1),
    Sketcher.Constraint("Symmetric", 2, 2, 8, 2, -2),
    Sketcher.Constraint("Parallel", 0, 3),
    Sketcher.Constraint("Parallel", 2, 5),
    Sketcher.Constraint("Parallel", 5, 8),
    Sketcher.Constraint("Parallel", 8, 11),
    Sketcher.Constraint("Horizontal", 1, 2, 3, 2),
    Sketcher.Constraint("Horizontal", 0, 2, 4, 2),
    Sketcher.Constraint("Angle", 0, Q("30 deg")),
    Sketcher.Constraint("DistanceX", 2, 2, -1, 1, 25.0),
    Sketcher.Constraint("DistanceX", 3, 2, 1, 2, 7.5),
    Sketcher.Constraint("DistanceY", 1, 1, 1, 2, 4.330127),
])
pocket3 = body.newObject("PartDesign::Pocket", "Pocket002")
pocket3.Profile = sketch4
pocket3.Length = 4

doc.recompute()
